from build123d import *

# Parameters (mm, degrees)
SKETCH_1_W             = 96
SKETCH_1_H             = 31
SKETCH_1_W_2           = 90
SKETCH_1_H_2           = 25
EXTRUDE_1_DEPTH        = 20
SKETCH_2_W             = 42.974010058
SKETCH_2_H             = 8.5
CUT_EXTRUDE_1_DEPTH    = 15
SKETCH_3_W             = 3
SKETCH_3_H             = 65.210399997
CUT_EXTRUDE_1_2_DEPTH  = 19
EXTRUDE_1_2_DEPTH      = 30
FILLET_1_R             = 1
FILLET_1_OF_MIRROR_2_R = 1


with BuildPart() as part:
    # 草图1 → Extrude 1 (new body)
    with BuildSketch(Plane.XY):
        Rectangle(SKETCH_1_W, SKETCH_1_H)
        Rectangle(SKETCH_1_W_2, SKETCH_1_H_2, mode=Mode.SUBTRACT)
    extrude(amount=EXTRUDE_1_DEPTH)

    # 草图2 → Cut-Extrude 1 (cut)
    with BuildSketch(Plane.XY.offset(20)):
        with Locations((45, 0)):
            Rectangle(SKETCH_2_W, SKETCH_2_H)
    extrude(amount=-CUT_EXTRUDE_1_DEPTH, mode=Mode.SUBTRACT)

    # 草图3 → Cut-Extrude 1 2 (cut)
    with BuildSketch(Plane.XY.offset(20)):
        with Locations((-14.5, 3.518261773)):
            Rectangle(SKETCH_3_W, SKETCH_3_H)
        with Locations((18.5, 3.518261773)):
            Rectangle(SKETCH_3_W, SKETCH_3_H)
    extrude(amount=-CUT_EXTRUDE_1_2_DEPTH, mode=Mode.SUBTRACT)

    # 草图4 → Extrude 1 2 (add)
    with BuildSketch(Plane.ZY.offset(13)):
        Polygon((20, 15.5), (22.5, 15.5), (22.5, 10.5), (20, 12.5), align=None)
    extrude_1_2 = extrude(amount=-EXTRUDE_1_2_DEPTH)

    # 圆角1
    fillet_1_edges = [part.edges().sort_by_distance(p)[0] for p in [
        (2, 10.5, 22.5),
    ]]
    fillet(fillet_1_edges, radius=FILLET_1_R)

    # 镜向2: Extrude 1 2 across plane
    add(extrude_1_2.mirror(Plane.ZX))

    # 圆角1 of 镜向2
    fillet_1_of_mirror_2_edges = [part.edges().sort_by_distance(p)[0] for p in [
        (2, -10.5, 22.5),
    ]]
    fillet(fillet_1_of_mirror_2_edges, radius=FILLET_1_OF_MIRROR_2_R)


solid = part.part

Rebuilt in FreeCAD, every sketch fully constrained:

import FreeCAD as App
import Part
import Sketcher


def edges_at(feature, points):
    """Names of the edges that pass closest to the given points."""
    edges = feature.Shape.Edges
    near = lambda p: min(range(len(edges)), key=lambda i: edges[i].distToShape(Part.Vertex(*p))[0])
    return sorted({f"Edge{near(p) + 1}" for p in points})

doc = App.newDocument("Part")
body = doc.addObject("PartDesign::Body", "Body")

sketch1 = doc.addObject("Sketcher::SketchObject", "Sketch")
body.addObject(sketch1)
sketch1.AttachmentSupport = (doc.XY_Plane, [""])
sketch1.MapMode = "FlatFace"
sketch1.addGeometry([
    Part.LineSegment(App.Vector(-48, 16, 0), App.Vector(-48, -16, 0)),
    Part.LineSegment(App.Vector(-48, -16, 0), App.Vector(48, -16, 0)),
    Part.LineSegment(App.Vector(48, -16, 0), App.Vector(48, 16, 0)),
    Part.LineSegment(App.Vector(48, 16, 0), App.Vector(-48, 16, 0)),
    Part.LineSegment(App.Vector(45, -12, 0), App.Vector(-45, -12, 0)),
    Part.LineSegment(App.Vector(-45, -12, 0), App.Vector(-45, 12, 0)),
    Part.LineSegment(App.Vector(-45, 12, 0), App.Vector(45, 12, 0)),
    Part.LineSegment(App.Vector(45, 12, 0), App.Vector(45, -12, 0)),
], False)
sketch1.addConstraint([
    Sketcher.Constraint("Coincident", 0, 2, 1, 1),
    Sketcher.Constraint("Coincident", 1, 2, 2, 1),
    Sketcher.Constraint("Coincident", 2, 2, 3, 1),
    Sketcher.Constraint("Coincident", 3, 2, 0, 1),
    Sketcher.Constraint("Coincident", 4, 2, 5, 1),
    Sketcher.Constraint("Coincident", 5, 2, 6, 1),
    Sketcher.Constraint("Coincident", 6, 2, 7, 1),
    Sketcher.Constraint("Coincident", 7, 2, 4, 1),
    Sketcher.Constraint("Vertical", 0),
    Sketcher.Constraint("Horizontal", 1),
    Sketcher.Constraint("Vertical", 2),
    Sketcher.Constraint("Horizontal", 3),
    Sketcher.Constraint("Horizontal", 4),
    Sketcher.Constraint("Vertical", 5),
    Sketcher.Constraint("Horizontal", 6),
    Sketcher.Constraint("Vertical", 7),
    Sketcher.Constraint("Symmetric", 0, 2, 2, 2, -1, 1),
    Sketcher.Constraint("Symmetric", 4, 2, 6, 2, -1, 1),
    Sketcher.Constraint("DistanceX", 1, 1, 1, 2, 96.0),
    Sketcher.Constraint("DistanceX", 4, 2, 4, 1, 90.0),
    Sketcher.Constraint("DistanceY", 0, 2, 0, 1, 31.0),
    Sketcher.Constraint("DistanceY", 5, 1, 5, 2, 25.0),
])
pad1 = doc.addObject("PartDesign::Pad", "Pad")
body.addObject(pad1)
pad1.Profile = sketch1
pad1.Length = 20

sketch2 = doc.addObject("Sketcher::SketchObject", "Sketch001")
body.addObject(sketch2)
sketch2.AttachmentSupport = (doc.XY_Plane, [""])
sketch2.MapMode = "FlatFace"
sketch2.AttachmentOffset = App.Placement(App.Vector(0, 0, 20), App.Rotation())
sketch2.addGeometry([
    Part.LineSegment(App.Vector(24, 4, 0), App.Vector(24, -4, 0)),
    Part.LineSegment(App.Vector(24, -4, 0), App.Vector(66, -4, 0)),
    Part.LineSegment(App.Vector(66, -4, 0), App.Vector(66, 4, 0)),
    Part.LineSegment(App.Vector(66, 4, 0), App.Vector(24, 4, 0)),
], False)
sketch2.addConstraint([
    Sketcher.Constraint("Coincident", 0, 2, 1, 1),
    Sketcher.Constraint("Coincident", 1, 2, 2, 1),
    Sketcher.Constraint("Coincident", 2, 2, 3, 1),
    Sketcher.Constraint("Coincident", 3, 2, 0, 1),
    Sketcher.Constraint("Vertical", 0),
    Sketcher.Constraint("Horizontal", 1),
    Sketcher.Constraint("Vertical", 2),
    Sketcher.Constraint("Horizontal", 3),
    Sketcher.Constraint("DistanceY", 0, 2, 0, 1, 8.5),
    Sketcher.Constraint("DistanceY", 0, 2, -1, 1, 4.25),
    Sketcher.Constraint("DistanceX", 1, 1, 1, 2, 42.97401),
    Sketcher.Constraint("DistanceX", -1, 1, 0, 2, 23.512995),
])
pocket1 = doc.addObject("PartDesign::Pocket", "Pocket")
body.addObject(pocket1)
pocket1.Profile = sketch2
pocket1.Length = 15

sketch3 = doc.addObject("Sketcher::SketchObject", "Sketch002")
body.addObject(sketch3)
sketch3.AttachmentSupport = (doc.XY_Plane, [""])
sketch3.MapMode = "FlatFace"
sketch3.AttachmentOffset = App.Placement(App.Vector(0, 0, 20), App.Rotation())
sketch3.addGeometry([
    Part.LineSegment(App.Vector(-16, 36.1, 0), App.Vector(-16, -29.1, 0)),
    Part.LineSegment(App.Vector(-16, -29.1, 0), App.Vector(-13, -29.1, 0)),
    Part.LineSegment(App.Vector(-13, -29.1, 0), App.Vector(-13, 36.1, 0)),
    Part.LineSegment(App.Vector(-13, 36.1, 0), App.Vector(-16, 36.1, 0)),
    Part.LineSegment(App.Vector(17, 36.1, 0), App.Vector(17, -29.1, 0)),
    Part.LineSegment(App.Vector(17, -29.1, 0), App.Vector(20, -29.1, 0)),
    Part.LineSegment(App.Vector(20, -29.1, 0), App.Vector(20, 36.1, 0)),
    Part.LineSegment(App.Vector(20, 36.1, 0), App.Vector(17, 36.1, 0)),
], False)
sketch3.addConstraint([
    Sketcher.Constraint("Coincident", 0, 2, 1, 1),
    Sketcher.Constraint("Coincident", 1, 2, 2, 1),
    Sketcher.Constraint("Coincident", 2, 2, 3, 1),
    Sketcher.Constraint("Coincident", 3, 2, 0, 1),
    Sketcher.Constraint("Coincident", 4, 2, 5, 1),
    Sketcher.Constraint("Coincident", 5, 2, 6, 1),
    Sketcher.Constraint("Coincident", 6, 2, 7, 1),
    Sketcher.Constraint("Coincident", 7, 2, 4, 1),
    Sketcher.Constraint("Vertical", 0),
    Sketcher.Constraint("Horizontal", 1),
    Sketcher.Constraint("Vertical", 2),
    Sketcher.Constraint("Horizontal", 3),
    Sketcher.Constraint("Vertical", 4),
    Sketcher.Constraint("Horizontal", 5),
    Sketcher.Constraint("Vertical", 6),
    Sketcher.Constraint("Horizontal", 7),
    Sketcher.Constraint("Horizontal", 1, 2, 4, 2),
    Sketcher.Constraint("Horizontal", 3, 2, 6, 2),
    Sketcher.Constraint("Equal", 3, 5),
    Sketcher.Constraint("DistanceX", 1, 1, 1, 2, 3.0),
    Sketcher.Constraint("DistanceX", 0, 2, -1, 1, 16.0),
    Sketcher.Constraint("DistanceX", -1, 1, 4, 2, 17.0),
    Sketcher.Constraint("DistanceY", 0, 2, 0, 1, 65.2104),
    Sketcher.Constraint("DistanceY", 0, 2, -1, 1, 29.086938),
])
pocket2 = doc.addObject("PartDesign::Pocket", "Pocket001")
body.addObject(pocket2)
pocket2.Profile = sketch3
pocket2.Length = 19

sketch4 = doc.addObject("Sketcher::SketchObject", "Sketch003")
body.addObject(sketch4)
sketch4.AttachmentSupport = (doc.YZ_Plane, [""])
sketch4.MapMode = "FlatFace"
sketch4.AttachmentOffset = App.Placement(App.Vector(0, 0, -13), App.Rotation())
sketch4.addGeometry([
    Part.LineSegment(App.Vector(15.5, 22.5, 0), App.Vector(15.5, 20, 0)),
    Part.LineSegment(App.Vector(15.5, 20, 0), App.Vector(12.5, 20, 0)),
    Part.LineSegment(App.Vector(12.5, 20, 0), App.Vector(10.5, 22.5, 0)),
    Part.LineSegment(App.Vector(10.5, 22.5, 0), App.Vector(15.5, 22.5, 0)),
], False)
sketch4.addConstraint([
    Sketcher.Constraint("Coincident", 0, 2, 1, 1),
    Sketcher.Constraint("Coincident", 1, 2, 2, 1),
    Sketcher.Constraint("Coincident", 2, 2, 3, 1),
    Sketcher.Constraint("Coincident", 3, 2, 0, 1),
    Sketcher.Constraint("Vertical", 0),
    Sketcher.Constraint("Horizontal", 1),
    Sketcher.Constraint("Horizontal", 3),
    Sketcher.Constraint("DistanceX", 1, 2, 1, 1, 3.0),
    Sketcher.Constraint("DistanceX", 3, 1, 3, 2, 5.0),
    Sketcher.Constraint("DistanceY", 0, 2, 0, 1, 2.5),
    Sketcher.Constraint("DistanceY", -1, 1, 0, 2, 20.0),
    Sketcher.Constraint("DistanceX", -1, 1, 0, 2, 15.5),
])
pad2 = doc.addObject("PartDesign::Pad", "Pad001")
body.addObject(pad2)
pad2.Profile = sketch4
pad2.Length = 30
doc.recompute()

fillet = doc.addObject("PartDesign::Fillet", "Fillet")
body.addObject(fillet)
fillet.Base = (pad2, edges_at(pad2, [(2, 10.5, 22.5)]))
fillet.Radius = 1
doc.recompute()

mirrored = doc.addObject("PartDesign::Mirrored", "Mirrored")
body.addObject(mirrored)
mirrored.Originals = [pad2]
mirrored.MirrorPlane = (doc.XZ_Plane, [""])
body.Tip = mirrored
doc.recompute()

fillet2 = doc.addObject("PartDesign::Fillet", "Fillet001")
body.addObject(fillet2)
fillet2.Base = (mirrored, edges_at(mirrored, [(2, -10.5, 22.5)]))
fillet2.Radius = 1

doc.recompute()
